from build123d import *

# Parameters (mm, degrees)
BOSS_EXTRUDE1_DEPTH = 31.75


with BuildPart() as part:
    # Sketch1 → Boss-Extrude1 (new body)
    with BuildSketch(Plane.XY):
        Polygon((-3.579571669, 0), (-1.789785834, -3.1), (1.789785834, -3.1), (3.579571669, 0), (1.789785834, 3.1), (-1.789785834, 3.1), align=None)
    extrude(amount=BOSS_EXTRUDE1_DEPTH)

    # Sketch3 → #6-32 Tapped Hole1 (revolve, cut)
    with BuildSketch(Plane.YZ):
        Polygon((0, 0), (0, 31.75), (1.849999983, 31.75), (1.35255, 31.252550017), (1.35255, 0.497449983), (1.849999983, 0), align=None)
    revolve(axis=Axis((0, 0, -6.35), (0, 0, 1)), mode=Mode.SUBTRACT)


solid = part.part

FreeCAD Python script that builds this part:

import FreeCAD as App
import Part
import Sketcher
from FreeCAD import Vector
Q = App.Units.Quantity


def add_polygon(sketch, points):
    """Adds a closed chain of lines whose ends are joined by coincident constraints."""
    first, n = sketch.GeometryCount, len(points)
    for a, b in zip(points, points[1:] + points[:1]):
        sketch.addGeometry(Part.LineSegment(App.Vector(*a, 0), App.Vector(*b, 0)), False)
    for i in range(n):
        sketch.addConstraint(Sketcher.Constraint("Coincident", first + i, 2, first + (i + 1) % n, 1))

doc = App.newDocument("Part")
body = doc.addObject("PartDesign::Body", "Body")

# Sketch on XY plane
sketch1 = body.newObject("Sketcher::SketchObject", "Sketch")
sketch1.AttachmentSupport = (doc.getObject("XY_Plane"), [""])
sketch1.MapMode = "FlatFace"
add_polygon(sketch1, [(-3.579572, 0), (-1.789786, -3.1), (1.789786, -3.1), (3.579572, 0), (1.789786, 3.1), (-1.789786, 3.1)])  # lines 0-5
sketch1.addConstraint(Sketcher.Constraint("Horizontal", 1))
sketch1.addConstraint(Sketcher.Constraint("Horizontal", 4))
sketch1.addConstraint(Sketcher.Constraint("Symmetric", 0, 2, 3, 2, -1, 1))
sketch1.addConstraint(Sketcher.Constraint("Symmetric", 2, 2, 5, 2, -1, 1))
sketch1.addConstraint(Sketcher.Constraint("PointOnObject", 2, 2, -1))
sketch1.addConstraint(Sketcher.Constraint("Parallel", 2, 5))
sketch1.addConstraint(Sketcher.Constraint("Vertical", 1, 2, 3, 2))
sketch1.addConstraint(Sketcher.Constraint("Angle", 0, Q("-60 deg")))
sketch1.addConstraint(Sketcher.Constraint("DistanceX", 1, 1, 1, 2, Q("3.579572 mm")))
sketch1.addConstraint(Sketcher.Constraint("DistanceY", 0, 2, -1, 1, Q("3.1 mm")))
pad1 = body.newObject("PartDesign::Pad", "Pad")
pad1.Profile = sketch1
pad1.Length = Q("1.25 in")

# Sketch on YZ plane
sketch2 = body.newObject("Sketcher::SketchObject", "Sketch001")
sketch2.AttachmentSupport = (doc.getObject("YZ_Plane"), [""])
sketch2.MapMode = "FlatFace"
add_polygon(sketch2, [(0, 31.75), (0, 0), (1.85, 0), (1.35255, 0.49745), (1.35255, 31.25255), (1.85, 31.75)])  # lines 0-5
sketch2.addConstraint(Sketcher.Constraint("Vertical", 0))
sketch2.addConstraint(Sketcher.Constraint("Horizontal", 1))
sketch2.addConstraint(Sketcher.Constraint("Vertical", 3))
sketch2.addConstraint(Sketcher.Constraint("Horizontal", 5))
sketch2.addConstraint(Sketcher.Constraint("Coincident", 0, 2, -1, 1))
sketch2.addConstraint(Sketcher.Constraint("Perpendicular", 2, 4))
sketch2.addConstraint(Sketcher.Constraint("Vertical", 1, 2, 4, 2))
sketch2.addConstraint(Sketcher.Constraint("Equal", 2, 4))
sketch2.addConstraint(Sketcher.Constraint("DistanceY", 0, 2, 0, 1, Q("1.25 in")))
sketch2.addConstraint(Sketcher.Constraint("DistanceX", 1, 1, 1, 2, Q("1.85 mm")))
sketch2.addConstraint(Sketcher.Constraint("DistanceY", 3, 1, 3, 2, Q("30.7551 mm")))
groove = body.newObject("PartDesign::Groove", "Groove")
groove.Profile = sketch2
groove.ReferenceAxis = (sketch2, ["V_Axis"])
groove.Angle = 360

doc.recompute()
